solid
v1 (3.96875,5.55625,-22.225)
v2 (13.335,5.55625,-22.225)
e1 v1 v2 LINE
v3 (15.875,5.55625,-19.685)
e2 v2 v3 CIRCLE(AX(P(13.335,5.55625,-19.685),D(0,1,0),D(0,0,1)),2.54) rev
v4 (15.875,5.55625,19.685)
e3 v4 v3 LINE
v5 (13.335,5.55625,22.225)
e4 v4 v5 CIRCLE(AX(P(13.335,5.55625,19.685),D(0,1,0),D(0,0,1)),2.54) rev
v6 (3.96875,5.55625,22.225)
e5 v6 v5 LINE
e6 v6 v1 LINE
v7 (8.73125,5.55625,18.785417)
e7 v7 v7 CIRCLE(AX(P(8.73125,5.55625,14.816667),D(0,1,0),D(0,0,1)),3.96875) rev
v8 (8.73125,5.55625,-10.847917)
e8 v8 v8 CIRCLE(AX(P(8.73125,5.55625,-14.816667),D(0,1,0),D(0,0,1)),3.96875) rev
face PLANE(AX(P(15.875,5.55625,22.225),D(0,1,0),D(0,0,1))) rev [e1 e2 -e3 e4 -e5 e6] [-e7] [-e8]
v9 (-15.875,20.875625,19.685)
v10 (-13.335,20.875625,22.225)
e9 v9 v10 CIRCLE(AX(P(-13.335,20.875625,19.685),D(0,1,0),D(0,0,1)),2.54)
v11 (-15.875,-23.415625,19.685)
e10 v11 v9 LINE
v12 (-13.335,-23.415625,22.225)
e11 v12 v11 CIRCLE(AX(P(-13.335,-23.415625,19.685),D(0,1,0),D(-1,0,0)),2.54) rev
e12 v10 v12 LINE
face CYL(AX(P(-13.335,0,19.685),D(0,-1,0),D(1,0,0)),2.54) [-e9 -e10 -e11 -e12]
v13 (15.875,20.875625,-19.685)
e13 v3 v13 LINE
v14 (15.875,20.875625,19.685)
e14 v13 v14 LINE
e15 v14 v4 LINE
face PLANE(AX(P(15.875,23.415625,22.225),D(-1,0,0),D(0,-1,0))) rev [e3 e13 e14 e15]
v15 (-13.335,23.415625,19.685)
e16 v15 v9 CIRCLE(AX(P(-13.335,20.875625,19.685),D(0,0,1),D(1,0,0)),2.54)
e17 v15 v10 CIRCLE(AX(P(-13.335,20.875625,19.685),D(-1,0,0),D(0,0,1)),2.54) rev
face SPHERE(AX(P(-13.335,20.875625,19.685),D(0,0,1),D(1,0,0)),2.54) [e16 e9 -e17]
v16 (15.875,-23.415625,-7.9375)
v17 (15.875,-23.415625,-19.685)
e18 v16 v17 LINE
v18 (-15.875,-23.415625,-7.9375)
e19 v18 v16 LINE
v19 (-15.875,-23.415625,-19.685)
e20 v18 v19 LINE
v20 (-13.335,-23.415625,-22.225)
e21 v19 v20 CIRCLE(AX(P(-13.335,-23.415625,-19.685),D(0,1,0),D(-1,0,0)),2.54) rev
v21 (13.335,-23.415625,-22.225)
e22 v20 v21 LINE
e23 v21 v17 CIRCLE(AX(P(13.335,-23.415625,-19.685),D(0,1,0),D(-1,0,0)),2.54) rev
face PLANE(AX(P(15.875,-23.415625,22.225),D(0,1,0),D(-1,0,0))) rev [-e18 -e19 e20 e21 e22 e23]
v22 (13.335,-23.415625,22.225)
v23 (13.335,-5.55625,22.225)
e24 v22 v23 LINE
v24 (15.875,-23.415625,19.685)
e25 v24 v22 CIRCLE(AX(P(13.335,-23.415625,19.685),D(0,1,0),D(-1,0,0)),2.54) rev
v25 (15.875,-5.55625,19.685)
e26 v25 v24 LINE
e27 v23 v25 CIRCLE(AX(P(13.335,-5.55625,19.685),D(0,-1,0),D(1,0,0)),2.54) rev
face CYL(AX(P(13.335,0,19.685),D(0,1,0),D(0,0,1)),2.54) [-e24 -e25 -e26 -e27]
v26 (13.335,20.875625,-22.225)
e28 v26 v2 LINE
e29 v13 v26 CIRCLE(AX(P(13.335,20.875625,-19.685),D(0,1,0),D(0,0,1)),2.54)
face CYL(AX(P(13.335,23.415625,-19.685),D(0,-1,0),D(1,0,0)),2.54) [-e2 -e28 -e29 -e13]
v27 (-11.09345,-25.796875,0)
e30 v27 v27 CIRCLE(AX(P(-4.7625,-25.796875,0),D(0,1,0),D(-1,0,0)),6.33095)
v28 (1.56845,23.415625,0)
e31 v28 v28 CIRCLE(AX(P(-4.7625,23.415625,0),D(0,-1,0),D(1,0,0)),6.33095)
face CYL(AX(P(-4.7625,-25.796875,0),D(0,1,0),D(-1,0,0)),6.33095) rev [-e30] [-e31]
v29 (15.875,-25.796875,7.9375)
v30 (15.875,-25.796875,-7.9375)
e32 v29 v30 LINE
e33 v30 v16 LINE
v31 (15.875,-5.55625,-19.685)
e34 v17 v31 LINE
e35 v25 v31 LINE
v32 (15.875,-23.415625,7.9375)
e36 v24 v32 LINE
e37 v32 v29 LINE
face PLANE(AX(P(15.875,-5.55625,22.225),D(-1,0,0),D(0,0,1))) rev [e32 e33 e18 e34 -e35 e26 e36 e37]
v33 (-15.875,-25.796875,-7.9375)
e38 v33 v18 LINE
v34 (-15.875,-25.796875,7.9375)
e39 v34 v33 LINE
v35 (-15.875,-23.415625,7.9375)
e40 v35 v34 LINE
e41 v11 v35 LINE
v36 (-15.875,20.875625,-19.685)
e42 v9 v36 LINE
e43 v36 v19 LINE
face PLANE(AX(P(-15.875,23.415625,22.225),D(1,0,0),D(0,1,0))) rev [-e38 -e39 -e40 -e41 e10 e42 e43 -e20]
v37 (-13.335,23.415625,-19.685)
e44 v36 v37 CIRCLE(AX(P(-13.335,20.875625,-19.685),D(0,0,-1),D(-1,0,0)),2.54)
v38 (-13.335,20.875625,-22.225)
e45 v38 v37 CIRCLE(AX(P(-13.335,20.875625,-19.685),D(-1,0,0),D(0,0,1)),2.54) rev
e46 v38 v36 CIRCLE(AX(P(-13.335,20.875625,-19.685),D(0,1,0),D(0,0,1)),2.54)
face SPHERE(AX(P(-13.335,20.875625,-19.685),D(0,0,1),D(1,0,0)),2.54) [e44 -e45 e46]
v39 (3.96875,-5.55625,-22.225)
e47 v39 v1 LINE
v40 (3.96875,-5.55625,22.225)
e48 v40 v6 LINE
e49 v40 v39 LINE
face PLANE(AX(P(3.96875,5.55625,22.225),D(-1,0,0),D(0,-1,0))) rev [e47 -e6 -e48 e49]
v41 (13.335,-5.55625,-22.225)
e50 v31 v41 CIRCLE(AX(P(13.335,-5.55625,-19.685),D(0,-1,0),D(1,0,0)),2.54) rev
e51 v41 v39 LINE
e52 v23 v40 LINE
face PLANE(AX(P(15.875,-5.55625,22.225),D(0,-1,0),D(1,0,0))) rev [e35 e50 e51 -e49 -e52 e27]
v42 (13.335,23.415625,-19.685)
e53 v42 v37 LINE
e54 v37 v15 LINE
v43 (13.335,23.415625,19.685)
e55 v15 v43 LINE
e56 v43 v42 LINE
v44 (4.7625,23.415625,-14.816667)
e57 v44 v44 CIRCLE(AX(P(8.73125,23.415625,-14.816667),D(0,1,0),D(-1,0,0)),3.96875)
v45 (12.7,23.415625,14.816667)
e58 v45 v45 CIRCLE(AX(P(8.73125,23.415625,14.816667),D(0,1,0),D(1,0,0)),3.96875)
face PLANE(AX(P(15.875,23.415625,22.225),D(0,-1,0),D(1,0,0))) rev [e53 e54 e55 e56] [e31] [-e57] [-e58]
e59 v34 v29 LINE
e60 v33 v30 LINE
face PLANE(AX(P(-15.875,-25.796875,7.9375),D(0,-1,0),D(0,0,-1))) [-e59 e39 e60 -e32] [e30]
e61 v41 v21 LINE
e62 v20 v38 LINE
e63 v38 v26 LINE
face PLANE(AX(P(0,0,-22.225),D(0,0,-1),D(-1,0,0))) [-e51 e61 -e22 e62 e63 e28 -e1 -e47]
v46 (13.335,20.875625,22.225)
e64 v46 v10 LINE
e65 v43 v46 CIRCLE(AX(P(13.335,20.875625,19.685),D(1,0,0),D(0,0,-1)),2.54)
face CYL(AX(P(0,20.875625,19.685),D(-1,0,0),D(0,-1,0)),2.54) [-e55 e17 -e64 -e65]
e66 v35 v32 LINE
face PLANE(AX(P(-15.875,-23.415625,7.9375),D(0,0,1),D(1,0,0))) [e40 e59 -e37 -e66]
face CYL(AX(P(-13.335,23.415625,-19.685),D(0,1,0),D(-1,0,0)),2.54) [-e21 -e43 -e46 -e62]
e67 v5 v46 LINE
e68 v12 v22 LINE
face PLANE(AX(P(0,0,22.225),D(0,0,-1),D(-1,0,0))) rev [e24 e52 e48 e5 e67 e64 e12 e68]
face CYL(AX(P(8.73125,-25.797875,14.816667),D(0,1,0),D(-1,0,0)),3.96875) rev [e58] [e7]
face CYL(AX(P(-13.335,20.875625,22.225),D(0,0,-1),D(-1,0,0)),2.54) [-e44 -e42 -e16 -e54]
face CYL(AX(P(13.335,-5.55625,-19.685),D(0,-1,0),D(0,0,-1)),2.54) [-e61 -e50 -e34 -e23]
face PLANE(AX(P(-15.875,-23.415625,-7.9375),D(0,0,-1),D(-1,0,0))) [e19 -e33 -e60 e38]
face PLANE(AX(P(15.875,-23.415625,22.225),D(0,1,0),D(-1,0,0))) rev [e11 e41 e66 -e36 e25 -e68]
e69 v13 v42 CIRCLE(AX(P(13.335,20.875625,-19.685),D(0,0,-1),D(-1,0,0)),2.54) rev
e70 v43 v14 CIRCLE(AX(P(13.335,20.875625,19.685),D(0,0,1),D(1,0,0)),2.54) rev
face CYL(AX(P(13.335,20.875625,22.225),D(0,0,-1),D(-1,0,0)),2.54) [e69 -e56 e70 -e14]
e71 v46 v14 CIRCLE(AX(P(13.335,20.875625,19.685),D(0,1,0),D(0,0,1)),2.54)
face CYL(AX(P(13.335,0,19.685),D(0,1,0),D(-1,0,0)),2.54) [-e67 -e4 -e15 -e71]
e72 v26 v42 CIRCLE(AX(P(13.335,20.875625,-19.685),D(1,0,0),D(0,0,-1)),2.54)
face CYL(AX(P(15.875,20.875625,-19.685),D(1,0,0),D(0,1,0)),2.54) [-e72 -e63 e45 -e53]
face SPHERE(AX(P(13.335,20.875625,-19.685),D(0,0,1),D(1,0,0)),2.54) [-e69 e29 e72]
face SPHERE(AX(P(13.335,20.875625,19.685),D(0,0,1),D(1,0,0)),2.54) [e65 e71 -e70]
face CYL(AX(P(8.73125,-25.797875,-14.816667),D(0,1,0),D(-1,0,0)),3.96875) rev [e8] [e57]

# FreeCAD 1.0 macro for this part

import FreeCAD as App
import Part
import Sketcher
Q = App.Units.Quantity


def edges_at(feature, points):
    """Names of the edges that pass closest to the given points."""
    edges = feature.Shape.Edges
    near = lambda p: min(range(len(edges)), key=lambda i: edges[i].distToShape(Part.Vertex(*p))[0])
    return sorted({f"Edge{near(p) + 1}" for p in points})

doc = App.newDocument("Part")
params = doc.addObject("Spreadsheet::Sheet", "Params")
for row, (alias, value) in enumerate([
    ("sketch1_width", "1.25 in"),
    ("sketch1_width2", "0.46875 in"),
    ("sketch1_height", "1.84375 in"),
    ("sketch1_height2", "0.703125 in"),
    ("pad1_length", "1.75 in"),
    ("sketch2_width", "0.09375 in"),
    ("sketch2_height", "0.625 in"),
    ("pad2_length", "1.25 in"),
    ("sketch4_diameter", "0.3125 in"),
    ("sketch5_diameter", "0.3125 in"),
    ("fillet_radius", "0.1 in"),
], start=1):
    params.set(f"A{row}", alias)
    params.set(f"B{row}", "=" + value)
    params.setAlias(f"B{row}", alias)

body = doc.addObject("PartDesign::Body", "Body")

sketch1 = body.newObject("Sketcher::SketchObject", "Sketch")
sketch1.AttachmentSupport = (doc.getObject("XY_Plane"), [""])
sketch1.MapMode = "FlatFace"
sketch1.addGeometry([
    Part.LineSegment(App.Vector(16, 23, 0), App.Vector(-16, 23, 0)),
    Part.LineSegment(App.Vector(-16, 23, 0), App.Vector(-16, -23, 0)),
    Part.LineSegment(App.Vector(-16, -23, 0), App.Vector(16, -23, 0)),
    Part.LineSegment(App.Vector(16, -23, 0), App.Vector(16, -6, 0)),
    Part.LineSegment(App.Vector(16, -6, 0), App.Vector(4, -6, 0)),
    Part.LineSegment(App.Vector(4, -6, 0), App.Vector(4, 6, 0)),
    Part.LineSegment(App.Vector(4, 6, 0), App.Vector(16, 6, 0)),
    Part.LineSegment(App.Vector(16, 6, 0), App.Vector(16, 23, 0)),
], False)
sketch1.addConstraint([
    Sketcher.Constraint("Coincident", 0, 2, 1, 1),
    Sketcher.Constraint("Coincident", 1, 2, 2, 1),
    Sketcher.Constraint("Coincident", 2, 2, 3, 1),
    Sketcher.Constraint("Coincident", 3, 2, 4, 1),
    Sketcher.Constraint("Coincident", 4, 2, 5, 1),
    Sketcher.Constraint("Coincident", 5, 2, 6, 1),
    Sketcher.Constraint("Coincident", 6, 2, 7, 1),
    Sketcher.Constraint("Coincident", 7, 2, 0, 1),
    Sketcher.Constraint("Horizontal", 0),
    Sketcher.Constraint("Vertical", 1),
    Sketcher.Constraint("Horizontal", 2),
    Sketcher.Constraint("Vertical", 3),
    Sketcher.Constraint("Horizontal", 4),
    Sketcher.Constraint("Vertical", 5),
    Sketcher.Constraint("Horizontal", 6),
    Sketcher.Constraint("Vertical", 7),
    Sketcher.Constraint("Symmetric", 0, 2, 2, 2, -1, 1),
    Sketcher.Constraint("Symmetric", 3, 2, 6, 2, -1),
    Sketcher.Constraint("DistanceX", 0, 2, 0, 1, Q("1.25 in")),
    Sketcher.Constraint("DistanceX", 4, 2, 4, 1, Q("0.46875 in")),
    Sketcher.Constraint("DistanceY", 1, 2, 1, 1, Q("1.84375 in")),
    Sketcher.Constraint("DistanceY", 3, 1, 3, 2, Q("0.703125 in")),
])
sketch1.setExpression("Constraints[18]", "Params.sketch1_width")
sketch1.setExpression("Constraints[19]", "Params.sketch1_width2")
sketch1.setExpression("Constraints[20]", "Params.sketch1_height")
sketch1.setExpression("Constraints[21]", "Params.sketch1_height2")
pad1 = body.newObject("PartDesign::Pad", "Pad")
pad1.Profile = sketch1
pad1.setExpression("Length", "Params.pad1_length")
pad1.Midplane = True

sketch2 = body.newObject("Sketcher::SketchObject", "Sketch001")
sketch2.AttachmentSupport = (doc.getObject("YZ_Plane"), [""])
sketch2.MapMode = "FlatFace"
sketch2.AttachmentOffset = App.Placement(App.Vector(0, 0, 0.625 * 25.4), App.Rotation())
sketch2.addGeometry([
    Part.LineSegment(App.Vector(-23.4, 7.9, 0), App.Vector(-25.8, 7.9, 0)),
    Part.LineSegment(App.Vector(-25.8, 7.9, 0), App.Vector(-25.8, -7.9, 0)),
    Part.LineSegment(App.Vector(-25.8, -7.9, 0), App.Vector(-23.4, -7.9, 0)),
    Part.LineSegment(App.Vector(-23.4, -7.9, 0), App.Vector(-23.4, 7.9, 0)),
], False)
sketch2.addConstraint([
    Sketcher.Constraint("Coincident", 0, 2, 1, 1),
    Sketcher.Constraint("Coincident", 1, 2, 2, 1),
    Sketcher.Constraint("Coincident", 2, 2, 3, 1),
    Sketcher.Constraint("Coincident", 3, 2, 0, 1),
    Sketcher.Constraint("Horizontal", 0),
    Sketcher.Constraint("Vertical", 1),
    Sketcher.Constraint("Horizontal", 2),
    Sketcher.Constraint("Vertical", 3),
    Sketcher.Constraint("DistanceX", 0, 2, 0, 1, Q("0.09375 in")),
    Sketcher.Constraint("DistanceY", 1, 2, 1, 1, Q("0.625 in")),
    Sketcher.Constraint("DistanceX", 0, 2, -1, 1, Q("1.015625 in")),
    Sketcher.Constraint("DistanceY", -1, 1, 0, 2, Q("0.3125 in")),
])
sketch2.setExpression("Constraints[8]", "Params.sketch2_width")
sketch2.setExpression("Constraints[9]", "Params.sketch2_height")
pad2 = body.newObject("PartDesign::Pad", "Pad001")
pad2.Profile = sketch2
pad2.setExpression("Length", "Params.pad2_length")
pad2.Reversed = True

sketch3 = body.newObject("Sketcher::SketchObject", "Sketch002")
sketch3.AttachmentSupport = (doc.getObject("XZ_Plane"), [""])
sketch3.MapMode = "FlatFace"
sketch3.AttachmentOffset = App.Placement(App.Vector(0, 0, -0.921875 * 25.4), App.Rotation())
sketch3.addGeometry(Part.Circle(App.Vector(-5, 0, 0), App.Vector(0, 0, 1), 6), False)
sketch3.addConstraint([
    Sketcher.Constraint("PointOnObject", 0, 3, -1),
    Sketcher.Constraint("Diameter", 0, Q("0.4985 in")),
    Sketcher.Constraint("DistanceX", 0, 3, -1, 1, Q("0.1875 in")),
])
pocket1 = body.newObject("PartDesign::Pocket", "Pocket")
pocket1.Profile = sketch3
pocket1.Type = "ThroughAll"
pocket1.Midplane = True

sketch4 = body.newObject("Sketcher::SketchObject", "Sketch003")
sketch4.AttachmentSupport = (doc.getObject("XZ_Plane"), [""])
sketch4.MapMode = "FlatFace"
sketch4.AttachmentOffset = App.Placement(App.Vector(0, 0, -0.921875 * 25.4), App.Rotation())
sketch4.addGeometry(Part.Circle(App.Vector(8.7, -14.8, 0), App.Vector(0, 0, 1), 4), False)
sketch4.addConstraint([
    Sketcher.Constraint("Diameter", 0, Q("0.3125 in")),
    Sketcher.Constraint("DistanceX", -1, 1, 0, 3, Q("0.34375 in")),
    Sketcher.Constraint("DistanceY", 0, 3, -1, 1, 14.816667),
])
sketch4.setExpression("Constraints[0]", "Params.sketch4_diameter")
pocket2 = body.newObject("PartDesign::Pocket", "Pocket001")
pocket2.Profile = sketch4
pocket2.Type = "UpToFirst"
pocket2.Reversed = True

sketch5 = body.newObject("Sketcher::SketchObject", "Sketch004")
sketch5.AttachmentSupport = (doc.getObject("XZ_Plane"), [""])
sketch5.MapMode = "FlatFace"
sketch5.AttachmentOffset = App.Placement(App.Vector(0, 0, -0.921875 * 25.4), App.Rotation())
sketch5.addGeometry(Part.Circle(App.Vector(8.7, 14.8, 0), App.Vector(0, 0, 1), 4), False)
sketch5.addConstraint([
    Sketcher.Constraint("Diameter", 0, Q("0.3125 in")),
    Sketcher.Constraint("DistanceX", -1, 1, 0, 3, Q("0.34375 in")),
    Sketcher.Constraint("DistanceY", -1, 1, 0, 3, 14.816667),
])
sketch5.setExpression("Constraints[0]", "Params.sketch5_diameter")
pocket3 = body.newObject("PartDesign::Pocket", "Pocket002")
pocket3.Profile = sketch5
pocket3.Type = "UpToFirst"
pocket3.Reversed = True
doc.recompute()

fillet = body.newObject("PartDesign::Fillet", "Fillet")
fillet.Base = (pocket3, edges_at(pocket3, [
    (15.875, -14.486, 22.225),
    (-15.875, 0, -22.225),
    (-15.875, 23.416, 0),
    (15.875, 23.416, 0),
    (15.875, 14.486, 22.225),
    (0, 23.416, 22.225),
    (-15.875, 0, 22.225),
    (0, 23.416, -22.225),
    (15.875, 14.486, -22.225),
    (15.875, -14.486, -22.225),
]))
fillet.setExpression("Radius", "Params.fillet_radius")

doc.recompute()
